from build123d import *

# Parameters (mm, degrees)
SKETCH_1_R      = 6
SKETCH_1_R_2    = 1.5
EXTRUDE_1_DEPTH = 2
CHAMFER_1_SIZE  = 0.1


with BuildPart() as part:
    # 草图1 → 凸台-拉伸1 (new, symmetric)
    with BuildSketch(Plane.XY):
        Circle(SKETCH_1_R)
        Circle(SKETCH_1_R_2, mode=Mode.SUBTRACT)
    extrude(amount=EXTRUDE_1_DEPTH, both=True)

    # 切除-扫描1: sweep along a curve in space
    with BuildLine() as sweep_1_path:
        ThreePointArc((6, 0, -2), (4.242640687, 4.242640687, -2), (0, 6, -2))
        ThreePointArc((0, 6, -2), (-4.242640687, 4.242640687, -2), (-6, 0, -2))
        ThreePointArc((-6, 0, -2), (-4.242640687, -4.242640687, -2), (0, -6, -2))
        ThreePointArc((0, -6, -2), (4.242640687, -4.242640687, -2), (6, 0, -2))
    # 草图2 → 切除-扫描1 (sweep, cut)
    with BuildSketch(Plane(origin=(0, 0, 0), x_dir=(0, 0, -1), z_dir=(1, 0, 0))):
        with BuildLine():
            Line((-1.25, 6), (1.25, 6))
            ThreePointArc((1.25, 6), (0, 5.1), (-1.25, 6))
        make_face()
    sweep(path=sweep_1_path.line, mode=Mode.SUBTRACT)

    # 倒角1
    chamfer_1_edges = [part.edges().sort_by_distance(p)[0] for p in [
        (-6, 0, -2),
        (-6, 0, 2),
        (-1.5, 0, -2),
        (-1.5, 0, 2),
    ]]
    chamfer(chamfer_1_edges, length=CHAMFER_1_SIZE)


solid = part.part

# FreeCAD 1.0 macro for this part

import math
import FreeCAD as App
import Part
import Sketcher
from FreeCAD import Vector
Q = App.Units.Quantity


def edges_at(feature, points):
    """Names of the edges that pass closest to the given points."""
    edges = feature.Shape.Edges
    near = lambda p: min(range(len(edges)), key=lambda i: edges[i].distToShape(Part.Vertex(*p))[0])
    return sorted({f"Edge{near(p) + 1}" for p in points})

doc = App.newDocument("Part")
body = doc.addObject("PartDesign::Body", "Body")

# Sketch on XY plane
sketch1 = body.newObject("Sketcher::SketchObject", "Sketch")
sketch1.AttachmentSupport = (doc.getObject("XY_Plane"), [""])
sketch1.MapMode = "FlatFace"
sketch1.addGeometry([
    Part.Circle(Vector(0, 0, 0), Vector(0, 0, 1), 6),
    Part.Circle(Vector(0, 0, 0), Vector(0, 0, 1), 1.5),
], False)
sketch1.addConstraint([
    Sketcher.Constraint("Coincident", 0, 3, -1, 1),
    Sketcher.Constraint("Coincident", 1, 3, -1, 1),
    Sketcher.Constraint("Diameter", 0, Q("12 mm")),
    Sketcher.Constraint("Diameter", 1, Q("3 mm")),
])
pad1 = body.newObject("PartDesign::Pad", "Pad")
pad1.Profile = sketch1
pad1.Length = 4
pad1.Midplane = True

# Sketch on YZ plane
sketch2 = body.newObject("Sketcher::SketchObject", "Sketch001")
sketch2.AttachmentSupport = (doc.getObject("YZ_Plane"), [""])
sketch2.MapMode = "FlatFace"
sketch2.addGeometry([
    Part.LineSegment(Vector(6, -1.2, 0), Vector(6, 1.2, 0)),
    Part.ArcOfCircle(Part.Circle(Vector(6.4, 0, 0), Vector(0, 0, 1), 1.3), math.radians(108), math.radians(252)),
], False)
sketch2.addConstraint([
    Sketcher.Constraint("Coincident", 0, 1, 1, 2),
    Sketcher.Constraint("Coincident", 1, 1, 0, 2),
    Sketcher.Constraint("Vertical", 0),
    Sketcher.Constraint("PointOnObject", 1, 3, -1),
    Sketcher.Constraint("DistanceY", 0, 1, 0, 2, Q("2.5 mm")),
    Sketcher.Constraint("DistanceX", -1, 1, 0, 1, Q("6 mm")),
    Sketcher.Constraint("Radius", 1, Q("1.318056 mm")),
])

# Sketch on XY plane
sketch3 = body.newObject("Sketcher::SketchObject", "Sketch002")
sketch3.AttachmentSupport = (doc.getObject("XY_Plane"), [""])
sketch3.MapMode = "FlatFace"
sketch3.AttachmentOffset = App.Placement(Vector(0, 0, -2), App.Rotation())
sketch3.addGeometry([
    Part.ArcOfCircle(Part.Circle(Vector(0, 0, 0), Vector(0, 0, 1), 6), math.radians(0), math.radians(90)),
    Part.ArcOfCircle(Part.Circle(Vector(0, 0, 0), Vector(0, 0, 1), 6), math.radians(90), math.radians(180)),
    Part.ArcOfCircle(Part.Circle(Vector(0, 0, 0), Vector(0, 0, 1), 6), math.radians(180), math.radians(270)),
    Part.ArcOfCircle(Part.Circle(Vector(0, 0, 0), Vector(0, 0, 1), 6), math.radians(-90), math.radians(0)),
], False)
sketch3.addConstraint([
    Sketcher.Constraint("Tangent", 0, 2, 1, 1),
    Sketcher.Constraint("Tangent", 1, 2, 2, 1),
    Sketcher.Constraint("Tangent", 2, 2, 3, 1),
    Sketcher.Constraint("Tangent", 3, 2, 0, 1),
    Sketcher.Constraint("Coincident", 0, 3, -1, 1),
    Sketcher.Constraint("Equal", 0, 1),
    Sketcher.Constraint("PointOnObject", 0, 2, -2),
    Sketcher.Constraint("PointOnObject", 1, 2, -1),
    Sketcher.Constraint("PointOnObject", 2, 2, -2),
    Sketcher.Constraint("PointOnObject", 3, 2, -1),
    Sketcher.Constraint("Radius", 0, Q("6 mm")),
])
doc.recompute()

subtractivepipe = body.newObject("PartDesign::SubtractivePipe", "SubtractivePipe")
subtractivepipe.Profile = sketch2
subtractivepipe.Spine = (sketch3, ["Edge1", "Edge2", "Edge3", "Edge4"])
doc.recompute()

chamfer = body.newObject("PartDesign::Chamfer", "Chamfer")
chamfer.Base = (subtractivepipe, edges_at(subtractivepipe, [
    (-6, 0, -2),
    (-6, 0, 2),
    (-1.5, 0, -2),
    (-1.5, 0, 2),
]))
chamfer.Size = 0.1

doc.recompute()
